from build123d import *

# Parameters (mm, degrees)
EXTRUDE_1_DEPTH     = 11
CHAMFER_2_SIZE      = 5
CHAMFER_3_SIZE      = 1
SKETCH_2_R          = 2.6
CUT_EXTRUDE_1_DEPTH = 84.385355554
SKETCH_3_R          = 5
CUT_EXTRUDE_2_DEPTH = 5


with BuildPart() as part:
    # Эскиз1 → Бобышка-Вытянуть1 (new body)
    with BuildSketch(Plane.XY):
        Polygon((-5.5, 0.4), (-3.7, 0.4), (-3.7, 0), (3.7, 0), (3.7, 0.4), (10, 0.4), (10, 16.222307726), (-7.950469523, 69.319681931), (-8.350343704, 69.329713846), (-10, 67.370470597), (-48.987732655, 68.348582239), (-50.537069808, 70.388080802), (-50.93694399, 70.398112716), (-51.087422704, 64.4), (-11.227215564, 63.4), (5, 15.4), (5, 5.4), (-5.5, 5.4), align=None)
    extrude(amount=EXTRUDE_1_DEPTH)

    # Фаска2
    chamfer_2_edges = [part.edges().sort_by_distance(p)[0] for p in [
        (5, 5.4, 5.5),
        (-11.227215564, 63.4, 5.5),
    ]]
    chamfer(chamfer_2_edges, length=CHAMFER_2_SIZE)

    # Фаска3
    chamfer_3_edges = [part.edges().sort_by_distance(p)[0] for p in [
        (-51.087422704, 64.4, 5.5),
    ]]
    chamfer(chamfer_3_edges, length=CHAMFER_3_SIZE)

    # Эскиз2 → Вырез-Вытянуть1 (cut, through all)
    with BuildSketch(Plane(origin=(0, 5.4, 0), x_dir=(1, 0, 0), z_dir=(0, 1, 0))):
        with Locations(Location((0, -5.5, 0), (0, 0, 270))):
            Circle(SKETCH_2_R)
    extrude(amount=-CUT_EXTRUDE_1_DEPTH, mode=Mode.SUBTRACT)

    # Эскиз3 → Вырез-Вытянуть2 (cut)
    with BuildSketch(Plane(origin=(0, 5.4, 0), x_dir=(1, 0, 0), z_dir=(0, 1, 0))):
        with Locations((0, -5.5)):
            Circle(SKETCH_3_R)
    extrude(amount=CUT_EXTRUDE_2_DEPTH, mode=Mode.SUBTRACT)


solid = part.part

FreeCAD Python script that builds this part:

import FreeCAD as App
import Part
import Sketcher
Q = App.Units.Quantity


def edges_at(feature, points):
    """Names of the edges that pass closest to the given points."""
    edges = feature.Shape.Edges
    near = lambda p: min(range(len(edges)), key=lambda i: edges[i].distToShape(Part.Vertex(*p))[0])
    return sorted({f"Edge{near(p) + 1}" for p in points})

doc = App.newDocument("Part")
body = doc.addObject("PartDesign::Body", "Body")

# Sketch on XY plane
sketch1 = doc.addObject("Sketcher::SketchObject", "Sketch")
body.addObject(sketch1)
sketch1.AttachmentSupport = (doc.XY_Plane, [""])
sketch1.MapMode = "FlatFace"
sketch1.addGeometry(Part.LineSegment(App.Vector(-5.5, 0.4, 0), App.Vector(-3.7, 0.4, 0)), False)
sketch1.addGeometry(Part.LineSegment(App.Vector(-3.7, 0.4, 0), App.Vector(-3.7, 0, 0)), False)
sketch1.addGeometry(Part.LineSegment(App.Vector(-3.7, 0, 0), App.Vector(3.7, 0, 0)), False)
sketch1.addGeometry(Part.LineSegment(App.Vector(3.7, 0, 0), App.Vector(3.7, 0.4, 0)), False)
sketch1.addGeometry(Part.LineSegment(App.Vector(3.7, 0.4, 0), App.Vector(10, 0.4, 0)), False)
sketch1.addGeometry(Part.LineSegment(App.Vector(10, 0.4, 0), App.Vector(10, 16.22, 0)), False)
sketch1.addGeometry(Part.LineSegment(App.Vector(10, 16.22, 0), App.Vector(-7.95, 69.32, 0)), False)
sketch1.addGeometry(Part.LineSegment(App.Vector(-7.95, 69.32, 0), App.Vector(-8.35, 69.33, 0)), False)
sketch1.addGeometry(Part.LineSegment(App.Vector(-8.35, 69.33, 0), App.Vector(-10, 67.37, 0)), False)
sketch1.addGeometry(Part.LineSegment(App.Vector(-10, 67.37, 0), App.Vector(-48.99, 68.35, 0)), False)
sketch1.addGeometry(Part.LineSegment(App.Vector(-48.99, 68.35, 0), App.Vector(-50.54, 70.39, 0)), False)
sketch1.addGeometry(Part.LineSegment(App.Vector(-50.54, 70.39, 0), App.Vector(-50.94, 70.4, 0)), False)
sketch1.addGeometry(Part.LineSegment(App.Vector(-50.94, 70.4, 0), App.Vector(-51.09, 64.4, 0)), False)
sketch1.addGeometry(Part.LineSegment(App.Vector(-51.09, 64.4, 0), App.Vector(-11.23, 63.4, 0)), False)
sketch1.addGeometry(Part.LineSegment(App.Vector(-11.23, 63.4, 0), App.Vector(5, 15.4, 0)), False)
sketch1.addGeometry(Part.LineSegment(App.Vector(5, 15.4, 0), App.Vector(5, 5.4, 0)), False)
sketch1.addGeometry(Part.LineSegment(App.Vector(5, 5.4, 0), App.Vector(-5.5, 5.4, 0)), False)
sketch1.addGeometry(Part.LineSegment(App.Vector(-5.5, 5.4, 0), App.Vector(-5.5, 0.4, 0)), False)
sketch1.addConstraint(Sketcher.Constraint("Coincident", 0, 2, 1, 1))
sketch1.addConstraint(Sketcher.Constraint("Coincident", 1, 2, 2, 1))
sketch1.addConstraint(Sketcher.Constraint("Coincident", 2, 2, 3, 1))
sketch1.addConstraint(Sketcher.Constraint("Coincident", 3, 2, 4, 1))
sketch1.addConstraint(Sketcher.Constraint("Coincident", 4, 2, 5, 1))
sketch1.addConstraint(Sketcher.Constraint("Coincident", 5, 2, 6, 1))
sketch1.addConstraint(Sketcher.Constraint("Coincident", 6, 2, 7, 1))
sketch1.addConstraint(Sketcher.Constraint("Coincident", 7, 2, 8, 1))
sketch1.addConstraint(Sketcher.Constraint("Coincident", 8, 2, 9, 1))
sketch1.addConstraint(Sketcher.Constraint("Coincident", 9, 2, 10, 1))
sketch1.addConstraint(Sketcher.Constraint("Coincident", 10, 2, 11, 1))
sketch1.addConstraint(Sketcher.Constraint("Coincident", 11, 2, 12, 1))
sketch1.addConstraint(Sketcher.Constraint("Coincident", 12, 2, 13, 1))
sketch1.addConstraint(Sketcher.Constraint("Coincident", 13, 2, 14, 1))
sketch1.addConstraint(Sketcher.Constraint("Coincident", 14, 2, 15, 1))
sketch1.addConstraint(Sketcher.Constraint("Coincident", 15, 2, 16, 1))
sketch1.addConstraint(Sketcher.Constraint("Coincident", 16, 2, 17, 1))
sketch1.addConstraint(Sketcher.Constraint("Coincident", 17, 2, 0, 1))
sketch1.addConstraint(Sketcher.Constraint("Horizontal", 0))
sketch1.addConstraint(Sketcher.Constraint("Vertical", 1))
sketch1.addConstraint(Sketcher.Constraint("Horizontal", 2))
sketch1.addConstraint(Sketcher.Constraint("Vertical", 3))
sketch1.addConstraint(Sketcher.Constraint("Horizontal", 4))
sketch1.addConstraint(Sketcher.Constraint("Vertical", 5))
sketch1.addConstraint(Sketcher.Constraint("Vertical", 15))
sketch1.addConstraint(Sketcher.Constraint("Horizontal", 16))
sketch1.addConstraint(Sketcher.Constraint("Vertical", 17))
sketch1.addConstraint(Sketcher.Constraint("Symmetric", 1, 2, 2, 2, -1, 1))
sketch1.addConstraint(Sketcher.Constraint("Parallel", 7, 9))
sketch1.addConstraint(Sketcher.Constraint("Parallel", 9, 11))
sketch1.addConstraint(Sketcher.Constraint("Perpendicular", 11, 12))
sketch1.addConstraint(Sketcher.Constraint("Perpendicular", 12, 13))
sketch1.addConstraint(Sketcher.Constraint("Parallel", 6, 14))
sketch1.addConstraint(Sketcher.Constraint("Horizontal", 0, 2, 3, 2))
sketch1.addConstraint(Sketcher.Constraint("Equal", 8, 10))
sketch1.addConstraint(Sketcher.Constraint("Equal", 7, 11))
sketch1.addConstraint(Sketcher.Constraint("DistanceY", 15, 2, 15, 1, Q("10 mm")))
sketch1.addConstraint(Sketcher.Constraint("DistanceY", 17, 2, 17, 1, Q("5 mm")))
sketch1.addConstraint(Sketcher.Constraint("Distance", 9, Q("39 mm")))
sketch1.addConstraint(Sketcher.Constraint("Distance", 12, Q("6 mm")))
sketch1.addConstraint(Sketcher.Constraint("DistanceX", 0, 1, 0, 2, Q("1.8 mm")))
sketch1.addConstraint(Sketcher.Constraint("DistanceX", 2, 1, 2, 2, Q("7.4 mm")))
sketch1.addConstraint(Sketcher.Constraint("DistanceX", 4, 1, 4, 2, Q("6.3 mm")))
sketch1.addConstraint(Sketcher.Constraint("DistanceX", 16, 2, 16, 1, Q("10.5 mm")))
sketch1.addConstraint(Sketcher.Constraint("DistanceY", 1, 2, 1, 1, Q("0.4 mm")))
sketch1.addConstraint(Sketcher.Constraint("DistanceX", 8, 2, -1, 1, Q("10 mm")))
sketch1.addConstraint(Sketcher.Constraint("DistanceY", 13, 2, 12, 2, Q("1 mm")))
sketch1.addConstraint(Sketcher.Constraint("Distance", 7, Q("0.4 mm")))
sketch1.addConstraint(Sketcher.Constraint("DistanceY", -1, 1, 12, 2, Q("64.4 mm")))
sketch1.addConstraint(Sketcher.Constraint("DistanceY", 9, 2, 6, 2, Q("0.9711 mm")))
sketch1.addConstraint(Sketcher.Constraint("DistanceY", 9, 2, 10, 2, Q("2.039499 mm")))
sketch1.addConstraint(Sketcher.Constraint("DistanceX", 10, 2, 6, 2, Q("42.5866 mm")))
sketch1.addConstraint(Sketcher.Constraint("Distance", 13, Q("39.872749 mm")))
pad1 = doc.addObject("PartDesign::Pad", "Pad")
body.addObject(pad1)
pad1.Profile = sketch1
pad1.Length = 11
doc.recompute()

chamfer = doc.addObject("PartDesign::Chamfer", "Chamfer")
body.addObject(chamfer)
chamfer.Base = (pad1, edges_at(pad1, [(5, 5.4, 5.5), (-11.227, 63.4, 5.5)]))
chamfer.Size = 5
doc.recompute()

chamfer2 = doc.addObject("PartDesign::Chamfer", "Chamfer001")
body.addObject(chamfer2)
chamfer2.Base = (chamfer, edges_at(chamfer, [(-51.087, 64.4, 5.5)]))
chamfer2.Size = 1

# Sketch on XZ plane
sketch2 = doc.addObject("Sketcher::SketchObject", "Sketch001")
body.addObject(sketch2)
sketch2.AttachmentSupport = (doc.XZ_Plane, [""])
sketch2.MapMode = "FlatFace"
sketch2.AttachmentOffset = App.Placement(App.Vector(0, 0, -5.4), App.Rotation())
sketch2.addGeometry(Part.Circle(App.Vector(0, 5.5, 0), App.Vector(0, 0, 1), 2.6), False)
sketch2.addConstraint(Sketcher.Constraint("PointOnObject", 0, 3, -2))
sketch2.addConstraint(Sketcher.Constraint("Diameter", 0, Q("5.2 mm")))
sketch2.addConstraint(Sketcher.Constraint("DistanceY", -1, 1, 0, 3, Q("5.5 mm")))
pocket1 = doc.addObject("PartDesign::Pocket", "Pocket")
body.addObject(pocket1)
pocket1.Profile = sketch2
pocket1.Type = "ThroughAll"
pocket1.Reversed = True

# Sketch on XZ plane
sketch3 = doc.addObject("Sketcher::SketchObject", "Sketch002")
body.addObject(sketch3)
sketch3.AttachmentSupport = (doc.XZ_Plane, [""])
sketch3.MapMode = "FlatFace"
sketch3.AttachmentOffset = App.Placement(App.Vector(0, 0, -5.4), App.Rotation())
sketch3.addGeometry(Part.Circle(App.Vector(0, 6, 0), App.Vector(0, 0, 1), 5), False)
sketch3.addConstraint(Sketcher.Constraint("PointOnObject", 0, 3, -2))
sketch3.addConstraint(Sketcher.Constraint("Diameter", 0, Q("10 mm")))
sketch3.addConstraint(Sketcher.Constraint("DistanceY", -1, 1, 0, 3, Q("5.5 mm")))
pocket2 = doc.addObject("PartDesign::Pocket", "Pocket001")
body.addObject(pocket2)
pocket2.Profile = sketch3
pocket2.Length = 5

doc.recompute()
